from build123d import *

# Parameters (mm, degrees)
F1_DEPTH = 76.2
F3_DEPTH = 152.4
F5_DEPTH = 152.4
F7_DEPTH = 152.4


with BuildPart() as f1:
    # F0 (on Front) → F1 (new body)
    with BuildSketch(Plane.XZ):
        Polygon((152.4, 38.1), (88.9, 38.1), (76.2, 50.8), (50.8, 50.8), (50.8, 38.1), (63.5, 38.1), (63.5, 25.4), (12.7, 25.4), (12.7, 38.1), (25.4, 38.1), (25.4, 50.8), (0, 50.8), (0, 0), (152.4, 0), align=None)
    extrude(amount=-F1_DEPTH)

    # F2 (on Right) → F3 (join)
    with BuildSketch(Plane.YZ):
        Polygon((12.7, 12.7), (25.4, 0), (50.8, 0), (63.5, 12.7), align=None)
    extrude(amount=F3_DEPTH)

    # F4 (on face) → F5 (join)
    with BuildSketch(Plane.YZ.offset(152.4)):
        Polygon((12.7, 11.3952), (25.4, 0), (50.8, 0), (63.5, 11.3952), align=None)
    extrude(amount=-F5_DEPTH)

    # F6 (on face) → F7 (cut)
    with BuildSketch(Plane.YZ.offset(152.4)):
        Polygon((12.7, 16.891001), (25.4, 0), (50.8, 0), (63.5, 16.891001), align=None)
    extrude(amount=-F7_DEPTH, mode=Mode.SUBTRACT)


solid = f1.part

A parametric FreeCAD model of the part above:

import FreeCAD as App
import Part
import Sketcher

V = App.Vector
Q = App.Units.Quantity

doc = App.newDocument("Part")
body = doc.addObject("PartDesign::Body", "Body")

sketch1 = body.newObject("Sketcher::SketchObject", "Sketch")
sketch1.AttachmentSupport = (doc.getObject("XZ_Plane"), [""])
sketch1.MapMode = "FlatFace"
sketch1.addGeometry(Part.LineSegment(V(152, 38, 0), V(89, 38, 0)), False)
sketch1.addGeometry(Part.LineSegment(V(89, 38, 0), V(76, 51, 0)), False)
sketch1.addGeometry(Part.LineSegment(V(76, 51, 0), V(51, 51, 0)), False)
sketch1.addGeometry(Part.LineSegment(V(51, 51, 0), V(51, 38, 0)), False)
sketch1.addGeometry(Part.LineSegment(V(51, 38, 0), V(64, 38, 0)), False)
sketch1.addGeometry(Part.LineSegment(V(64, 38, 0), V(64, 25, 0)), False)
sketch1.addGeometry(Part.LineSegment(V(64, 25, 0), V(13, 25, 0)), False)
sketch1.addGeometry(Part.LineSegment(V(13, 25, 0), V(13, 38, 0)), False)
sketch1.addGeometry(Part.LineSegment(V(13, 38, 0), V(25, 38, 0)), False)
sketch1.addGeometry(Part.LineSegment(V(25, 38, 0), V(25, 51, 0)), False)
sketch1.addGeometry(Part.LineSegment(V(25, 51, 0), V(0, 51, 0)), False)
sketch1.addGeometry(Part.LineSegment(V(0, 51, 0), V(0, 0, 0)), False)
sketch1.addGeometry(Part.LineSegment(V(0, 0, 0), V(152, 0, 0)), False)
sketch1.addGeometry(Part.LineSegment(V(152, 0, 0), V(152, 38, 0)), False)
sketch1.addConstraint(Sketcher.Constraint("Coincident", 0, 2, 1, 1))
sketch1.addConstraint(Sketcher.Constraint("Coincident", 1, 2, 2, 1))
sketch1.addConstraint(Sketcher.Constraint("Coincident", 2, 2, 3, 1))
sketch1.addConstraint(Sketcher.Constraint("Coincident", 3, 2, 4, 1))
sketch1.addConstraint(Sketcher.Constraint("Coincident", 4, 2, 5, 1))
sketch1.addConstraint(Sketcher.Constraint("Coincident", 5, 2, 6, 1))
sketch1.addConstraint(Sketcher.Constraint("Coincident", 6, 2, 7, 1))
sketch1.addConstraint(Sketcher.Constraint("Coincident", 7, 2, 8, 1))
sketch1.addConstraint(Sketcher.Constraint("Coincident", 8, 2, 9, 1))
sketch1.addConstraint(Sketcher.Constraint("Coincident", 9, 2, 10, 1))
sketch1.addConstraint(Sketcher.Constraint("Coincident", 10, 2, 11, 1))
sketch1.addConstraint(Sketcher.Constraint("Coincident", 11, 2, 12, 1))
sketch1.addConstraint(Sketcher.Constraint("Coincident", 12, 2, 13, 1))
sketch1.addConstraint(Sketcher.Constraint("Coincident", 13, 2, 0, 1))
sketch1.addConstraint(Sketcher.Constraint("Horizontal", 0))
sketch1.addConstraint(Sketcher.Constraint("Horizontal", 2))
sketch1.addConstraint(Sketcher.Constraint("Vertical", 3))
sketch1.addConstraint(Sketcher.Constraint("Horizontal", 4))
sketch1.addConstraint(Sketcher.Constraint("Vertical", 5))
sketch1.addConstraint(Sketcher.Constraint("Horizontal", 6))
sketch1.addConstraint(Sketcher.Constraint("Vertical", 7))
sketch1.addConstraint(Sketcher.Constraint("Horizontal", 8))
sketch1.addConstraint(Sketcher.Constraint("Vertical", 9))
sketch1.addConstraint(Sketcher.Constraint("Horizontal", 10))
sketch1.addConstraint(Sketcher.Constraint("Vertical", 11))
sketch1.addConstraint(Sketcher.Constraint("Horizontal", 12))
sketch1.addConstraint(Sketcher.Constraint("Vertical", 13))
sketch1.addConstraint(Sketcher.Constraint("Coincident", 11, 2, -1, 1))
sketch1.addConstraint(Sketcher.Constraint("Horizontal", 0, 2, 3, 2))
sketch1.addConstraint(Sketcher.Constraint("Horizontal", 4, 2, 7, 2))
sketch1.addConstraint(Sketcher.Constraint("Horizontal", 2, 2, 9, 2))
sketch1.addConstraint(Sketcher.Constraint("Equal", 4, 8))
sketch1.addConstraint(Sketcher.Constraint("Equal", 2, 10))
sketch1.addConstraint(Sketcher.Constraint("Equal", 8, 3))
sketch1.addConstraint(Sketcher.Constraint("Equal", 3, 5))
sketch1.addConstraint(Sketcher.Constraint("Equal", 6, 11))
sketch1.addConstraint(Sketcher.Constraint("DistanceX", 2, 2, 2, 1, Q("1 in")))
sketch1.addConstraint(Sketcher.Constraint("DistanceX", 6, 2, 6, 1, Q("2 in")))
sketch1.addConstraint(Sketcher.Constraint("DistanceX", 12, 1, 12, 2, Q("6 in")))
sketch1.addConstraint(Sketcher.Constraint("DistanceX", 0, 2, 0, 1, Q("2.5 in")))
sketch1.addConstraint(Sketcher.Constraint("DistanceX", 4, 1, 4, 2, Q("0.5 in")))
pad1 = body.newObject("PartDesign::Pad", "Pad")
pad1.Profile = sketch1
pad1.Length = Q("3 in")
pad1.Reversed = True

sketch2 = body.newObject("Sketcher::SketchObject", "Sketch001")
sketch2.AttachmentSupport = (doc.getObject("YZ_Plane"), [""])
sketch2.MapMode = "FlatFace"
sketch2.addGeometry(Part.LineSegment(V(13, 13, 0), V(25, 0, 0)), False)
sketch2.addGeometry(Part.LineSegment(V(25, 0, 0), V(51, 0, 0)), False)
sketch2.addGeometry(Part.LineSegment(V(51, 0, 0), V(64, 13, 0)), False)
sketch2.addGeometry(Part.LineSegment(V(64, 13, 0), V(13, 13, 0)), False)
sketch2.addConstraint(Sketcher.Constraint("Coincident", 0, 2, 1, 1))
sketch2.addConstraint(Sketcher.Constraint("Coincident", 1, 2, 2, 1))
sketch2.addConstraint(Sketcher.Constraint("Coincident", 2, 2, 3, 1))
sketch2.addConstraint(Sketcher.Constraint("Coincident", 3, 2, 0, 1))
sketch2.addConstraint(Sketcher.Constraint("Horizontal", 1))
sketch2.addConstraint(Sketcher.Constraint("Horizontal", 3))
sketch2.addConstraint(Sketcher.Constraint("PointOnObject", 0, 2, -1))
sketch2.addConstraint(Sketcher.Constraint("Perpendicular", 0, 2))
sketch2.addConstraint(Sketcher.Constraint("Equal", 0, 2))
sketch2.addConstraint(Sketcher.Constraint("DistanceX", 1, 1, 1, 2, Q("1 in")))
sketch2.addConstraint(Sketcher.Constraint("DistanceX", 3, 2, 3, 1, Q("2 in")))
sketch2.addConstraint(Sketcher.Constraint("DistanceX", -1, 1, 0, 2, Q("1 in")))
pad2 = body.newObject("PartDesign::Pad", "Pad001")
pad2.Profile = sketch2
pad2.Length = Q("6 in")

sketch3 = body.newObject("Sketcher::SketchObject", "Sketch002")
sketch3.AttachmentSupport = (doc.getObject("YZ_Plane"), [""])
sketch3.MapMode = "FlatFace"
sketch3.AttachmentOffset = App.Placement(V(0, 0, 6 * 25.4), App.Rotation())
sketch3.addGeometry(Part.LineSegment(V(13, 11, 0), V(25, 0, 0)), False)
sketch3.addGeometry(Part.LineSegment(V(25, 0, 0), V(51, 0, 0)), False)
sketch3.addGeometry(Part.LineSegment(V(51, 0, 0), V(64, 11, 0)), False)
sketch3.addGeometry(Part.LineSegment(V(64, 11, 0), V(13, 11, 0)), False)
sketch3.addConstraint(Sketcher.Constraint("Coincident", 0, 2, 1, 1))
sketch3.addConstraint(Sketcher.Constraint("Coincident", 1, 2, 2, 1))
sketch3.addConstraint(Sketcher.Constraint("Coincident", 2, 2, 3, 1))
sketch3.addConstraint(Sketcher.Constraint("Coincident", 3, 2, 0, 1))
sketch3.addConstraint(Sketcher.Constraint("Horizontal", 1))
sketch3.addConstraint(Sketcher.Constraint("Horizontal", 3))
sketch3.addConstraint(Sketcher.Constraint("PointOnObject", 0, 2, -1))
sketch3.addConstraint(Sketcher.Constraint("Equal", 0, 2))
sketch3.addConstraint(Sketcher.Constraint("DistanceX", 1, 1, 1, 2, Q("1 in")))
sketch3.addConstraint(Sketcher.Constraint("DistanceX", 3, 2, 3, 1, Q("2 in")))
sketch3.addConstraint(Sketcher.Constraint("DistanceX", -1, 1, 0, 2, Q("1 in")))
sketch3.addConstraint(Sketcher.Constraint("DistanceY", -1, 1, 2, 2, 11.3952))
pad3 = body.newObject("PartDesign::Pad", "Pad002")
pad3.Profile = sketch3
pad3.Length = Q("6 in")
pad3.Reversed = True

sketch4 = body.newObject("Sketcher::SketchObject", "Sketch003")
sketch4.AttachmentSupport = (doc.getObject("YZ_Plane"), [""])
sketch4.MapMode = "FlatFace"
sketch4.AttachmentOffset = App.Placement(V(0, 0, 6 * 25.4), App.Rotation())
sketch4.addGeometry(Part.LineSegment(V(13, 17, 0), V(25, 0, 0)), False)
sketch4.addGeometry(Part.LineSegment(V(25, 0, 0), V(51, 0, 0)), False)
sketch4.addGeometry(Part.LineSegment(V(51, 0, 0), V(64, 17, 0)), False)
sketch4.addGeometry(Part.LineSegment(V(64, 17, 0), V(13, 17, 0)), False)
sketch4.addConstraint(Sketcher.Constraint("Coincident", 0, 2, 1, 1))
sketch4.addConstraint(Sketcher.Constraint("Coincident", 1, 2, 2, 1))
sketch4.addConstraint(Sketcher.Constraint("Coincident", 2, 2, 3, 1))
sketch4.addConstraint(Sketcher.Constraint("Coincident", 3, 2, 0, 1))
sketch4.addConstraint(Sketcher.Constraint("Horizontal", 1))
sketch4.addConstraint(Sketcher.Constraint("Horizontal", 3))
sketch4.addConstraint(Sketcher.Constraint("PointOnObject", 0, 2, -1))
sketch4.addConstraint(Sketcher.Constraint("Equal", 0, 2))
sketch4.addConstraint(Sketcher.Constraint("DistanceX", 1, 1, 1, 2, Q("1 in")))
sketch4.addConstraint(Sketcher.Constraint("DistanceX", 3, 2, 3, 1, Q("2 in")))
sketch4.addConstraint(Sketcher.Constraint("DistanceX", -1, 1, 0, 2, Q("1 in")))
sketch4.addConstraint(Sketcher.Constraint("DistanceY", -1, 1, 2, 2, Q("0.665 in")))
pocket1 = body.newObject("PartDesign::Pocket", "Pocket")
pocket1.Profile = sketch4
pocket1.Length = Q("6 in")

doc.recompute()
